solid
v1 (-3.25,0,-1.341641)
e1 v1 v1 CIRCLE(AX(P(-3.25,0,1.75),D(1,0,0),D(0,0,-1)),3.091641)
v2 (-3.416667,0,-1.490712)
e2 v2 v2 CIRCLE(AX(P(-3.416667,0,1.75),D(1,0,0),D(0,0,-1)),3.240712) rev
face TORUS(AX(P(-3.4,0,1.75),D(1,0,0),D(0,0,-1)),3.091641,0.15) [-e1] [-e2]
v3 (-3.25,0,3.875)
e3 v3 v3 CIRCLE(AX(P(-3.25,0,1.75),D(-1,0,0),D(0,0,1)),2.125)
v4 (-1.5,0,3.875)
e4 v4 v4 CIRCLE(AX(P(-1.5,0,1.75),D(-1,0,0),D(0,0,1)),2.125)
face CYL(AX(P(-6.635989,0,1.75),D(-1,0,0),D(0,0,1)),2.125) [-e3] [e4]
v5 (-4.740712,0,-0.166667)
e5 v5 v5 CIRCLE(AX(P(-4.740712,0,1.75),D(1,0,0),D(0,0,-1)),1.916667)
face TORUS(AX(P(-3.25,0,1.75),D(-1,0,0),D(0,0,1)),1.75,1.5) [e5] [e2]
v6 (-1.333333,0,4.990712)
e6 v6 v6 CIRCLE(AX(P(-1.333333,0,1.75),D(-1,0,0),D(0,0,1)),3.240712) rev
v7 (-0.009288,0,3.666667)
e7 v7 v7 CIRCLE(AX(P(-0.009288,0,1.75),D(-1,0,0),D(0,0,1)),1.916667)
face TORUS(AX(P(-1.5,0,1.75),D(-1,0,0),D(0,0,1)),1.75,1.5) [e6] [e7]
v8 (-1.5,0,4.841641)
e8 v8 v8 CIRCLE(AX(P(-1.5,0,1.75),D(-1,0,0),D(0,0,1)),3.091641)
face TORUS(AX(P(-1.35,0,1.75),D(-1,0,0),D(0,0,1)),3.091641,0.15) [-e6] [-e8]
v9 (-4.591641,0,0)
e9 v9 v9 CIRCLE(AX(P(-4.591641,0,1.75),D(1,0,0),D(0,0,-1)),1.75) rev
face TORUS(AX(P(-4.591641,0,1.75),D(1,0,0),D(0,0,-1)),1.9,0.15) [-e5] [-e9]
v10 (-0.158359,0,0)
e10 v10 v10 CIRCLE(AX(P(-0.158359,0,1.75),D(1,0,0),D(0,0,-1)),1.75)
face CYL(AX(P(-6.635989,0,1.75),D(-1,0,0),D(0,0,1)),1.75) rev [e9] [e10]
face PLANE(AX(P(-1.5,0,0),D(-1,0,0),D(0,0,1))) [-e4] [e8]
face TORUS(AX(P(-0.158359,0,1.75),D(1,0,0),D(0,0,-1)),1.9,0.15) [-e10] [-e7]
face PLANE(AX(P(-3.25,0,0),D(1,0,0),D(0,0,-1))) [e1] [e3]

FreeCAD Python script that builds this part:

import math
import FreeCAD as App
import Part
import Sketcher

V = App.Vector
Q = App.Units.Quantity


def edges_at(feature, points):
    """Names of the edges that pass closest to the given points."""
    edges = feature.Shape.Edges
    near = lambda p: min(range(len(edges)), key=lambda i: edges[i].distToShape(Part.Vertex(*p))[0])
    return sorted({f"Edge{near(p) + 1}" for p in points})

doc = App.newDocument("Part")
params = doc.addObject("Spreadsheet::Sheet", "Params")
for row, (alias, value) in enumerate([
    ("sketch1_radius", "1.5 mm"),
    ("sketch1_width", "4.75 mm"),
    ("sketch1_width2", "1.75 mm"),
    ("revolution_angle", "360 deg"),
    ("fillet_radius", "0.15 mm"),
], start=1):
    params.set(f"A{row}", alias)
    params.set(f"B{row}", "=" + value)
    params.setAlias(f"B{row}", alias)

body = doc.addObject("PartDesign::Body", "Body")

# Sketch on XZ plane
sketch1 = doc.addObject("Sketcher::SketchObject", "Sketch")
body.addObject(sketch1)
sketch1.AttachmentSupport = (doc.XZ_Plane, [""])
sketch1.MapMode = "FlatFace"
sketch1.addGeometry([
    Part.LineSegment(V(-4.8, 0, 0), V(0, 0, 0)),  # 0
    Part.ArcOfCircle(Part.Circle(V(-1.5, 0, 0), V(0, 0, 1), 1.5), math.radians(-90), math.radians(0)),  # 1
    Part.LineSegment(V(-1.5, -1.5, 0), V(-1.5, -0.4, 0)),  # 2
    Part.LineSegment(V(-1.5, -0.4, 0), V(-3.2, -0.4, 0)),  # 3
    Part.LineSegment(V(-3.2, -0.4, 0), V(-3.2, -1.5, 0)),  # 4
    Part.ArcOfCircle(Part.Circle(V(-3.3, 0, 0), V(0, 0, 1), 1.5), math.radians(180), math.radians(270)),  # 5
], False)
sketch1.addGeometry(Part.LineSegment(V(-4.8, 1.8, 0), V(0, 1.8, 0)), True)  # axis
sketch1.addConstraint([
    Sketcher.Constraint("Coincident", 0, 2, 1, 2),
    Sketcher.Constraint("Coincident", 1, 1, 2, 1),
    Sketcher.Constraint("Coincident", 2, 2, 3, 1),
    Sketcher.Constraint("Coincident", 3, 2, 4, 1),
    Sketcher.Constraint("Coincident", 4, 2, 5, 2),
    Sketcher.Constraint("Coincident", 5, 1, 0, 1),
    Sketcher.Constraint("Horizontal", 0),
    Sketcher.Constraint("Vertical", 2),
    Sketcher.Constraint("Horizontal", 3),
    Sketcher.Constraint("Vertical", 4),
    Sketcher.Constraint("Horizontal", 6),
    Sketcher.Constraint("Coincident", 0, 2, -1, 1),
    Sketcher.Constraint("Equal", 1, 5),
    Sketcher.Constraint("PointOnObject", 1, 3, -1),
    Sketcher.Constraint("PointOnObject", 5, 3, -1),
    Sketcher.Constraint("PointOnObject", 6, 2, -2),
    Sketcher.Constraint("Vertical", 5, 3, 3, 2),
    Sketcher.Constraint("Vertical", 5, 1, 6, 1),
    Sketcher.Constraint("Radius", 1, Q("1.5 mm")),
    Sketcher.Constraint("DistanceX", 0, 1, 0, 2, Q("4.75 mm")),
    Sketcher.Constraint("DistanceX", 3, 2, 3, 1, Q("1.75 mm")),
    Sketcher.Constraint("DistanceY", 2, 1, 2, 2, Q("1.125 mm")),
    Sketcher.Constraint("DistanceY", -1, 1, 6, 1, Q("1.75 mm")),
])
sketch1.setExpression("Constraints[18]", "Params.sketch1_radius")
sketch1.setExpression("Constraints[19]", "Params.sketch1_width")
sketch1.setExpression("Constraints[20]", "Params.sketch1_width2")
revolution = doc.addObject("PartDesign::Revolution", "Revolution")
body.addObject(revolution)
revolution.Profile = sketch1
revolution.ReferenceAxis = (sketch1, ["Axis0"])
revolution.setExpression("Angle", "Params.revolution_angle")
doc.recompute()

fillet = doc.addObject("PartDesign::Fillet", "Fillet")
body.addObject(fillet)
fillet.Base = (revolution, edges_at(revolution, [
    (-4.75, 0, 0),
    (-3.25, 0, -1.5),
    (-1.5, 0, -1.5),
    (0, 0, 0),
]))
fillet.setExpression("Radius", "Params.fillet_radius")

doc.recompute()
